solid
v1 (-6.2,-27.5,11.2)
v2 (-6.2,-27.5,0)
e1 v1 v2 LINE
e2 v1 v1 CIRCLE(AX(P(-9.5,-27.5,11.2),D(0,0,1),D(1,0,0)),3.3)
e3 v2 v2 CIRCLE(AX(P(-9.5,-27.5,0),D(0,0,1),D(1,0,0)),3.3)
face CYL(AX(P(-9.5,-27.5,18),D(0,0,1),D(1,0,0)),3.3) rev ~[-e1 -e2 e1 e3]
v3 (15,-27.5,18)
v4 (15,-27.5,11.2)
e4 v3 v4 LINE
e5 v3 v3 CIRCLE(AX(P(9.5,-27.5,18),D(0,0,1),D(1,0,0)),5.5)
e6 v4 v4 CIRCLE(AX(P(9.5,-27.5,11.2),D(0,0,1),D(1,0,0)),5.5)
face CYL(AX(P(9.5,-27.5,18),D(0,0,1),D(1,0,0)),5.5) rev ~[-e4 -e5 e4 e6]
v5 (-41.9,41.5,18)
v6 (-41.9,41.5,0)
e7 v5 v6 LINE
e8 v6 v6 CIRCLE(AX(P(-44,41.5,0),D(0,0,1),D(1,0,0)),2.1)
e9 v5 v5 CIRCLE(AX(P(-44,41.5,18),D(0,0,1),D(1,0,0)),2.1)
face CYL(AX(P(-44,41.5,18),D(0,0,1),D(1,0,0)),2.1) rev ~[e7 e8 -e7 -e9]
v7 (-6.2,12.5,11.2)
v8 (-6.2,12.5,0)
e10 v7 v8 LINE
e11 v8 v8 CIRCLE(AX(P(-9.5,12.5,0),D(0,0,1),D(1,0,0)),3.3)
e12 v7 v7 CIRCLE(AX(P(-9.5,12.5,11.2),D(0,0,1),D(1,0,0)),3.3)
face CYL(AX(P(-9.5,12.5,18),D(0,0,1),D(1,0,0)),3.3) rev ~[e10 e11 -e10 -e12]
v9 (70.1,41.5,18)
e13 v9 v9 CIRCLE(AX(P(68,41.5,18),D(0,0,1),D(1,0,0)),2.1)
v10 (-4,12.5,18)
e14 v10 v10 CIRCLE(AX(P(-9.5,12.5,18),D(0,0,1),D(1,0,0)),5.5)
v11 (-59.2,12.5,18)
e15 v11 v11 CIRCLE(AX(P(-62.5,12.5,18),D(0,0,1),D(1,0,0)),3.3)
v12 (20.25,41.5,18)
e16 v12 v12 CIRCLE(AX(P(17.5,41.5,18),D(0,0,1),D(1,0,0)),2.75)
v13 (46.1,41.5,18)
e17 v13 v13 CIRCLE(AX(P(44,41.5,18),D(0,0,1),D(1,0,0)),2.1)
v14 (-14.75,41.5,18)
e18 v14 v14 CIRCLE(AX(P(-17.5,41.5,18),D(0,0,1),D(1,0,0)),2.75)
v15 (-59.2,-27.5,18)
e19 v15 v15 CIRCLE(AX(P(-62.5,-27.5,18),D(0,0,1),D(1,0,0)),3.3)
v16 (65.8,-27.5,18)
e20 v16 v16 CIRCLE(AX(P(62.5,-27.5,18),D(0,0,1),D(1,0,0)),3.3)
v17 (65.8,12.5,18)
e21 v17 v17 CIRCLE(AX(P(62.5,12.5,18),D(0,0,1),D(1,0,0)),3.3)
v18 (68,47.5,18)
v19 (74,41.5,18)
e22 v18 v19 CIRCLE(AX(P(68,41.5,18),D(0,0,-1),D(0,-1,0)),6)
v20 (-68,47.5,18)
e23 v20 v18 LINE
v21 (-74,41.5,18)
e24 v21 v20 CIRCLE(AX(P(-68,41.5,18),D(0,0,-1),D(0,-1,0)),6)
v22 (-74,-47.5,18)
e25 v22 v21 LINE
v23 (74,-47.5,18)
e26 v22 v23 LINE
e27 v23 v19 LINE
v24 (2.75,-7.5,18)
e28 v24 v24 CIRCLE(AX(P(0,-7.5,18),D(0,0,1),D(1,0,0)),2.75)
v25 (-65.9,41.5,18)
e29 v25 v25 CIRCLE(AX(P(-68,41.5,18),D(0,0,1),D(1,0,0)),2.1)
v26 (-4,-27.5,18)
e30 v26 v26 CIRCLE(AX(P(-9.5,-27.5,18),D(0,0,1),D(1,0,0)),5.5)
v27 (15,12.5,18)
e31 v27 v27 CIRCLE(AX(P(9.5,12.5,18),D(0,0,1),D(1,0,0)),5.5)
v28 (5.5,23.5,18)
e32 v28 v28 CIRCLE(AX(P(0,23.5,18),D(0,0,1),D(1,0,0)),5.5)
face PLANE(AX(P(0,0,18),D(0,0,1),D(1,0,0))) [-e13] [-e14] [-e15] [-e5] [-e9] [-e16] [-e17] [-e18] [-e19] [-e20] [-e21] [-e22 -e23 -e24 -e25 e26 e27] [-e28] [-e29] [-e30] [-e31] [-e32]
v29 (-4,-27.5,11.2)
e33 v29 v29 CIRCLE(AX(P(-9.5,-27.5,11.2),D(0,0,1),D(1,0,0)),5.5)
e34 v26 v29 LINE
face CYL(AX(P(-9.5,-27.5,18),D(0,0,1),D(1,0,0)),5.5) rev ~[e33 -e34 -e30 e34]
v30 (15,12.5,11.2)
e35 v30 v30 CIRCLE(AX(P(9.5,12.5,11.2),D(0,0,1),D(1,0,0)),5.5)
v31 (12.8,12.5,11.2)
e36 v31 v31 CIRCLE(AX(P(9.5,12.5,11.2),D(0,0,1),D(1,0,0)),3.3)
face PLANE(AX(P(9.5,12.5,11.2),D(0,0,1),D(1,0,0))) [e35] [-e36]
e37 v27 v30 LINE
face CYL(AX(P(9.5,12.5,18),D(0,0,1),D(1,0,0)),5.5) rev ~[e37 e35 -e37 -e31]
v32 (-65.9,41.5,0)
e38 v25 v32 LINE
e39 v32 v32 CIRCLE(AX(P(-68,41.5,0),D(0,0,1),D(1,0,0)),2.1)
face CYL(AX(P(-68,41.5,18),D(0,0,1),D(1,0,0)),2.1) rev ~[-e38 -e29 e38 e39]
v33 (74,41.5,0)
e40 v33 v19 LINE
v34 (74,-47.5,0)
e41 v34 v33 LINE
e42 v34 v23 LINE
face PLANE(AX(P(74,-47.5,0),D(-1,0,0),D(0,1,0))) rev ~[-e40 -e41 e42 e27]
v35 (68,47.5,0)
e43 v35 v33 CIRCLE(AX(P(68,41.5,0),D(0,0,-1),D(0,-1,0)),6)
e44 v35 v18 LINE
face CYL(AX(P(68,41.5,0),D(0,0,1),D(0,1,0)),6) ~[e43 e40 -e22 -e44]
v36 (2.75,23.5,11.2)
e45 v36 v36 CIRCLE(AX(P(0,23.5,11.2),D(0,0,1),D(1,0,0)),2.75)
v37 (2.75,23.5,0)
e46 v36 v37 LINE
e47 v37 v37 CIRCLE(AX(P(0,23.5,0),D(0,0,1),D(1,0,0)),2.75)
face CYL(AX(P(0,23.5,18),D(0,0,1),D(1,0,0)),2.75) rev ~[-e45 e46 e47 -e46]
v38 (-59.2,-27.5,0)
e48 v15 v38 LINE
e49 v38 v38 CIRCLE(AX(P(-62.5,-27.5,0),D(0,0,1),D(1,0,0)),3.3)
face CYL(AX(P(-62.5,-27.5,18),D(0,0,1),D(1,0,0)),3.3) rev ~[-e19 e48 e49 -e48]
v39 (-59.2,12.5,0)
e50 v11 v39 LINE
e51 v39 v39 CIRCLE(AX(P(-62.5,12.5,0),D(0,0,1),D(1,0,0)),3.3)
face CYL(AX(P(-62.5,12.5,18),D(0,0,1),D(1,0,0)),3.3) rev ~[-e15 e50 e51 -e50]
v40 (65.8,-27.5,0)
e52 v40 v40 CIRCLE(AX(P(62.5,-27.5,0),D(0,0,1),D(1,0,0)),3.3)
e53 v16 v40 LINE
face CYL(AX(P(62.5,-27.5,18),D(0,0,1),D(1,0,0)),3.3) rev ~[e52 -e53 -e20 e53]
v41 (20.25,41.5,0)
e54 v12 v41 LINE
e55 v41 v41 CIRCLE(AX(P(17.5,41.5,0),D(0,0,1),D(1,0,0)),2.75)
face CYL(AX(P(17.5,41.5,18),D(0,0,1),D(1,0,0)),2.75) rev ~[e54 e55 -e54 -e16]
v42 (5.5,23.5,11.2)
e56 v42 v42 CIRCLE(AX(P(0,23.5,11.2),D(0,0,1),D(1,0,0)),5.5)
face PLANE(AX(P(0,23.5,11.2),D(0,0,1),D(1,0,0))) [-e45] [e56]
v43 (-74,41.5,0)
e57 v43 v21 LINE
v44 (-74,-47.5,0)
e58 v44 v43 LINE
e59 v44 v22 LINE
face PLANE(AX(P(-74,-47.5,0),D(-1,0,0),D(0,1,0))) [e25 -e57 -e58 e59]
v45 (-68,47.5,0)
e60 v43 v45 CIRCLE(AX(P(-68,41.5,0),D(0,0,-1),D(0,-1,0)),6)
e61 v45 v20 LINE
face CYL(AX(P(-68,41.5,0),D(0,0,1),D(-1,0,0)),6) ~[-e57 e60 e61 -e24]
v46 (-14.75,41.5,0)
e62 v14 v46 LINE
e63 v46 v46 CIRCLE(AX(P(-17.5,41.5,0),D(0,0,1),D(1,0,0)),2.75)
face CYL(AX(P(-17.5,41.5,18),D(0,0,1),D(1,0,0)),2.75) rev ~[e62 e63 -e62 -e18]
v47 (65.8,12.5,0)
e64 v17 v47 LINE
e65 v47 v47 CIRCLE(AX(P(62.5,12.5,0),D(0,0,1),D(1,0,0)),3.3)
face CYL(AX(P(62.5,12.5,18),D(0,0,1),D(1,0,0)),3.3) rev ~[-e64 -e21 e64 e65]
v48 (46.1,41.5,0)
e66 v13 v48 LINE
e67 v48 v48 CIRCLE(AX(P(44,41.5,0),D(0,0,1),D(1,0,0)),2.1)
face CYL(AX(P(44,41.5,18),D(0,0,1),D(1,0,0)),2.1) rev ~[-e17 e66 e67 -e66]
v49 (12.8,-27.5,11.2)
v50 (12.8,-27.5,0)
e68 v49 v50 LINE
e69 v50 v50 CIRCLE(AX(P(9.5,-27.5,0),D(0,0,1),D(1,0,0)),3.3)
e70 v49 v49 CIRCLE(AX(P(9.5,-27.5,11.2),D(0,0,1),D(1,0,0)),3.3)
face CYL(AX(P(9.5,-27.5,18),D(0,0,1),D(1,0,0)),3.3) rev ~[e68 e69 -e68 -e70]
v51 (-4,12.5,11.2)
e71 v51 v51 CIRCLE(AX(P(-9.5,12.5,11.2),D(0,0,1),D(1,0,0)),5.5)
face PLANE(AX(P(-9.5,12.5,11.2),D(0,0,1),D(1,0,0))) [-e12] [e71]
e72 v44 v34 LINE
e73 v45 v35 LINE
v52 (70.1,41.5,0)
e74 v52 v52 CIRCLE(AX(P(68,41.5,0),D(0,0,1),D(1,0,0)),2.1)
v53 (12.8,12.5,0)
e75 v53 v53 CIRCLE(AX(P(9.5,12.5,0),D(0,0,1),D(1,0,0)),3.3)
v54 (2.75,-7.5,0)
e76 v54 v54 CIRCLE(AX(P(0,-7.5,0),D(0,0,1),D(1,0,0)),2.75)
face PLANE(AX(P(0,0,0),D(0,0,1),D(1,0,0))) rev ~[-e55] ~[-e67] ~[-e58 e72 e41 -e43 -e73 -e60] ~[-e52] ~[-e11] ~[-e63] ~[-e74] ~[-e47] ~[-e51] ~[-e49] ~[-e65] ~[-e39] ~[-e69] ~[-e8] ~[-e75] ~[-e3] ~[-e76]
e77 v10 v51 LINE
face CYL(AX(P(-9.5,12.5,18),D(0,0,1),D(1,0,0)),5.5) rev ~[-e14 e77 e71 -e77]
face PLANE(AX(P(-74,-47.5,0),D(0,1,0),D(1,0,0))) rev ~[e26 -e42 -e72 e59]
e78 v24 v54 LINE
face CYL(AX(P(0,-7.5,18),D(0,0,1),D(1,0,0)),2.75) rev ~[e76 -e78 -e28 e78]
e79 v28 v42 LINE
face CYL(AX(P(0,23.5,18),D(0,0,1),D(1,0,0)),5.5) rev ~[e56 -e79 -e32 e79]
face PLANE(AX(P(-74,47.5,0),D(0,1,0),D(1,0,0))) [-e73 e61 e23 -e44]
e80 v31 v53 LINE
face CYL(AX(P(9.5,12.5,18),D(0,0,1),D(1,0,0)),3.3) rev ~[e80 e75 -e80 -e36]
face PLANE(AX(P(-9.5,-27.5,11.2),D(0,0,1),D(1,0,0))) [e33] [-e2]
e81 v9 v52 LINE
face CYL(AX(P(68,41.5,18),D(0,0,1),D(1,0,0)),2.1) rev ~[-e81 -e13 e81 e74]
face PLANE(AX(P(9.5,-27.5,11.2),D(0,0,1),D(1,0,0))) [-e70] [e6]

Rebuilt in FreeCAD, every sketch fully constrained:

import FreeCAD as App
import Part
import Sketcher

V = App.Vector


def edges_at(feature, points):
    """Names of the edges that pass closest to the given points."""
    edges = feature.Shape.Edges
    near = lambda p: min(range(len(edges)), key=lambda i: edges[i].distToShape(Part.Vertex(*p))[0])
    return sorted({f"Edge{near(p) + 1}" for p in points})

doc = App.newDocument("Part")
params = doc.addObject("Spreadsheet::Sheet", "Params")
for row, (alias, value) in enumerate([
    ("sketch1_width", "148 mm"),
    ("sketch1_height", "95 mm"),
    ("pad1_length", "18 mm"),
    ("sketch2_diameter", "6.6 mm"),
    ("sketch2_diameter2", "5.5 mm"),
    ("sketch2_diameter3", "4.2 mm"),
    ("sketch3_diameter", "11 mm"),
    ("pocket2_length", "6.8 mm"),
    ("fillet_radius", "6 mm"),
    ("sketch4_diameter", "5.5 mm"),
], start=1):
    params.set(f"A{row}", alias)
    params.set(f"B{row}", "=" + value)
    params.setAlias(f"B{row}", alias)

body = doc.addObject("PartDesign::Body", "Body")

# Sketch on XY plane
sketch1 = doc.addObject("Sketcher::SketchObject", "Sketch")
body.addObject(sketch1)
sketch1.AttachmentSupport = (doc.XY_Plane, [""])
sketch1.MapMode = "FlatFace"
sketch1.addGeometry([
    Part.LineSegment(V(-74, 48, 0), V(-74, -48, 0)),
    Part.LineSegment(V(-74, -48, 0), V(74, -48, 0)),
    Part.LineSegment(V(74, -48, 0), V(74, 48, 0)),
    Part.LineSegment(V(74, 48, 0), V(-74, 48, 0)),
], False)
sketch1.addConstraint([
    Sketcher.Constraint("Coincident", 0, 2, 1, 1),
    Sketcher.Constraint("Coincident", 1, 2, 2, 1),
    Sketcher.Constraint("Coincident", 2, 2, 3, 1),
    Sketcher.Constraint("Coincident", 3, 2, 0, 1),
    Sketcher.Constraint("Vertical", 0),
    Sketcher.Constraint("Horizontal", 1),
    Sketcher.Constraint("Vertical", 2),
    Sketcher.Constraint("Horizontal", 3),
    Sketcher.Constraint("Symmetric", 0, 2, 2, 2, -1, 1),
    Sketcher.Constraint("DistanceX", 1, 1, 1, 2, 148.0),
    Sketcher.Constraint("DistanceY", 0, 2, 0, 1, 95.0),
])
sketch1.setExpression("Constraints[9]", "Params.sketch1_width")
sketch1.setExpression("Constraints[10]", "Params.sketch1_height")
pad1 = doc.addObject("PartDesign::Pad", "Pad")
body.addObject(pad1)
pad1.Profile = sketch1
pad1.setExpression("Length", "Params.pad1_length")

# Sketch on XY plane
sketch2 = doc.addObject("Sketcher::SketchObject", "Sketch001")
body.addObject(sketch2)
sketch2.AttachmentSupport = (doc.XY_Plane, [""])
sketch2.MapMode = "FlatFace"
sketch2.AttachmentOffset = App.Placement(V(0, 0, 18), App.Rotation())
sketch2.addGeometry([
    Part.Circle(V(-62.5, 12.5, 0), V(0, 0, 1), 3.3),  # 0
    Part.Circle(V(-62.5, -27.5, 0), V(0, 0, 1), 3.3),  # 1
    Part.Circle(V(-9.5, 12.5, 0), V(0, 0, 1), 3.3),  # 2
    Part.Circle(V(-9.5, -27.5, 0), V(0, 0, 1), 3.3),  # 3
    Part.Circle(V(0, -7.5, 0), V(0, 0, 1), 2.8),  # 4
    Part.Circle(V(0, 23.5, 0), V(0, 0, 1), 2.8),  # 5
    Part.Circle(V(-68, 41.5, 0), V(0, 0, 1), 2.1),  # 6
    Part.Circle(V(-44, 41.5, 0), V(0, 0, 1), 2.1),  # 7
    Part.Circle(V(-17.5, 41.5, 0), V(0, 0, 1), 2.8),  # 8
    Part.Circle(V(9.5, -27.5, 0), V(0, 0, 1), 3.3),  # 9
    Part.Circle(V(9.5, 12.5, 0), V(0, 0, 1), 3.3),  # 10
    Part.Circle(V(17.5, 41.5, 0), V(0, 0, 1), 2.8),  # 11
    Part.Circle(V(44, 41.5, 0), V(0, 0, 1), 2.1),  # 12
    Part.Circle(V(68, 41.5, 0), V(0, 0, 1), 2.1),  # 13
    Part.Circle(V(62.5, 12.5, 0), V(0, 0, 1), 3.3),  # 14
    Part.Circle(V(62.5, -27.5, 0), V(0, 0, 1), 3.3),  # 15
], False)
sketch2.addConstraint([
    Sketcher.Constraint("Equal", 0, 1),
    Sketcher.Constraint("Equal", 1, 2),
    Sketcher.Constraint("Equal", 2, 3),
    Sketcher.Constraint("Equal", 4, 5),
    Sketcher.Constraint("Equal", 6, 7),
    Sketcher.Constraint("Equal", 5, 8),
    Sketcher.Constraint("Equal", 3, 9),
    Sketcher.Constraint("Equal", 9, 10),
    Sketcher.Constraint("Equal", 8, 11),
    Sketcher.Constraint("Equal", 7, 12),
    Sketcher.Constraint("Equal", 12, 13),
    Sketcher.Constraint("Equal", 10, 14),
    Sketcher.Constraint("Equal", 14, 15),
    Sketcher.Constraint("Symmetric", 3, 3, 9, 3, -2),
    Sketcher.Constraint("Symmetric", 2, 3, 10, 3, -2),
    Sketcher.Constraint("Symmetric", 8, 3, 11, 3, -2),
    Sketcher.Constraint("Symmetric", 7, 3, 12, 3, -2),
    Sketcher.Constraint("Symmetric", 6, 3, 13, 3, -2),
    Sketcher.Constraint("Symmetric", 0, 3, 14, 3, -2),
    Sketcher.Constraint("Symmetric", 1, 3, 15, 3, -2),
    Sketcher.Constraint("PointOnObject", 4, 3, -2),
    Sketcher.Constraint("PointOnObject", 5, 3, -2),
    Sketcher.Constraint("Horizontal", 0, 3, 2, 3),
    Sketcher.Constraint("Horizontal", 1, 3, 3, 3),
    Sketcher.Constraint("Horizontal", 6, 3, 7, 3),
    Sketcher.Constraint("Horizontal", 7, 3, 8, 3),
    Sketcher.Constraint("Vertical", 0, 3, 1, 3),
    Sketcher.Constraint("Vertical", 2, 3, 3, 3),
    Sketcher.Constraint("Diameter", 0, 6.6),
    Sketcher.Constraint("Diameter", 4, 5.5),
    Sketcher.Constraint("Diameter", 6, 4.2),
    Sketcher.Constraint("DistanceX", 6, 3, -1, 1, 68.0),
    Sketcher.Constraint("DistanceX", 7, 3, -1, 1, 44.0),
    Sketcher.Constraint("DistanceY", 1, 3, 0, 3, 40.0),
    Sketcher.Constraint("DistanceX", 0, 3, 2, 3, 53.0),
    Sketcher.Constraint("DistanceY", 4, 3, 2, 3, 20.0),
    Sketcher.Constraint("DistanceY", 2, 3, 5, 3, 11.0),
    Sketcher.Constraint("DistanceY", 0, 3, 6, 3, 29.0),
    Sketcher.Constraint("DistanceX", 8, 3, 2, 3, 8.0),
    Sketcher.Constraint("DistanceX", 3, 3, 9, 3, 19.0),
    Sketcher.Constraint("DistanceY", -1, 1, 0, 3, 12.5),
])
sketch2.setExpression("Constraints[28]", "Params.sketch2_diameter")
sketch2.setExpression("Constraints[29]", "Params.sketch2_diameter2")
sketch2.setExpression("Constraints[30]", "Params.sketch2_diameter3")
pocket1 = doc.addObject("PartDesign::Pocket", "Pocket")
body.addObject(pocket1)
pocket1.Profile = sketch2
pocket1.Type = "ThroughAll"

# Sketch on XY plane
sketch3 = doc.addObject("Sketcher::SketchObject", "Sketch002")
body.addObject(sketch3)
sketch3.AttachmentSupport = (doc.XY_Plane, [""])
sketch3.MapMode = "FlatFace"
sketch3.AttachmentOffset = App.Placement(V(0, 0, 18), App.Rotation())
sketch3.addGeometry([
    Part.Circle(V(-10, 12, 0), V(0, 0, 1), 6),  # 0
    Part.Circle(V(10, 12, 0), V(0, 0, 1), 6),  # 1
    Part.Circle(V(-10, -28, 0), V(0, 0, 1), 6),  # 2
    Part.Circle(V(10, -28, 0), V(0, 0, 1), 6),  # 3
    Part.Circle(V(0, 24, 0), V(0, 0, 1), 6),  # 4
], False)
sketch3.addConstraint([
    Sketcher.Constraint("Equal", 0, 1),
    Sketcher.Constraint("Equal", 1, 2),
    Sketcher.Constraint("Equal", 2, 3),
    Sketcher.Constraint("Equal", 3, 4),
    Sketcher.Constraint("Symmetric", 0, 3, 1, 3, -2),
    Sketcher.Constraint("Symmetric", 2, 3, 3, 3, -2),
    Sketcher.Constraint("PointOnObject", 4, 3, -2),
    Sketcher.Constraint("Vertical", 0, 3, 2, 3),
    Sketcher.Constraint("Diameter", 0, 11.0),
    Sketcher.Constraint("DistanceX", 0, 3, 1, 3, 19.0),
    Sketcher.Constraint("DistanceY", 2, 3, 0, 3, 40.0),
    Sketcher.Constraint("DistanceY", 0, 3, 4, 3, 11.0),
    Sketcher.Constraint("DistanceY", -1, 1, 0, 3, 12.5),
])
sketch3.setExpression("Constraints[8]", "Params.sketch3_diameter")
pocket2 = doc.addObject("PartDesign::Pocket", "Pocket001")
body.addObject(pocket2)
pocket2.Profile = sketch3
pocket2.setExpression("Length", "Params.pocket2_length")
doc.recompute()

fillet = doc.addObject("PartDesign::Fillet", "Fillet")
body.addObject(fillet)
fillet.Base = (pocket2, edges_at(pocket2, [(-74, 47.5, 9), (74, 47.5, 9)]))
fillet.setExpression("Radius", "Params.fillet_radius")

# Sketch on XY plane
sketch4 = doc.addObject("Sketcher::SketchObject", "Sketch003")
body.addObject(sketch4)
sketch4.AttachmentSupport = (doc.XY_Plane, [""])
sketch4.MapMode = "FlatFace"
sketch4.AttachmentOffset = App.Placement(V(0, 0, 18), App.Rotation())
sketch4.addGeometry([
    Part.Circle(V(0, -7.5, 0), V(0, 0, 1), 2.8),
    Part.Circle(V(0, 23.5, 0), V(0, 0, 1), 2.8),
], False)
sketch4.addConstraint([
    Sketcher.Constraint("Equal", 0, 1),
    Sketcher.Constraint("PointOnObject", 0, 3, -2),
    Sketcher.Constraint("PointOnObject", 1, 3, -2),
    Sketcher.Constraint("Diameter", 0, 5.5),
    Sketcher.Constraint("DistanceY", 0, 3, 1, 3, 31.0),
    Sketcher.Constraint("DistanceY", 0, 3, -1, 1, 7.5),
])
sketch4.setExpression("Constraints[3]", "Params.sketch4_diameter")
pocket3 = doc.addObject("PartDesign::Pocket", "Pocket002")
body.addObject(pocket3)
pocket3.Profile = sketch4
pocket3.Type = "ThroughAll"

doc.recompute()
